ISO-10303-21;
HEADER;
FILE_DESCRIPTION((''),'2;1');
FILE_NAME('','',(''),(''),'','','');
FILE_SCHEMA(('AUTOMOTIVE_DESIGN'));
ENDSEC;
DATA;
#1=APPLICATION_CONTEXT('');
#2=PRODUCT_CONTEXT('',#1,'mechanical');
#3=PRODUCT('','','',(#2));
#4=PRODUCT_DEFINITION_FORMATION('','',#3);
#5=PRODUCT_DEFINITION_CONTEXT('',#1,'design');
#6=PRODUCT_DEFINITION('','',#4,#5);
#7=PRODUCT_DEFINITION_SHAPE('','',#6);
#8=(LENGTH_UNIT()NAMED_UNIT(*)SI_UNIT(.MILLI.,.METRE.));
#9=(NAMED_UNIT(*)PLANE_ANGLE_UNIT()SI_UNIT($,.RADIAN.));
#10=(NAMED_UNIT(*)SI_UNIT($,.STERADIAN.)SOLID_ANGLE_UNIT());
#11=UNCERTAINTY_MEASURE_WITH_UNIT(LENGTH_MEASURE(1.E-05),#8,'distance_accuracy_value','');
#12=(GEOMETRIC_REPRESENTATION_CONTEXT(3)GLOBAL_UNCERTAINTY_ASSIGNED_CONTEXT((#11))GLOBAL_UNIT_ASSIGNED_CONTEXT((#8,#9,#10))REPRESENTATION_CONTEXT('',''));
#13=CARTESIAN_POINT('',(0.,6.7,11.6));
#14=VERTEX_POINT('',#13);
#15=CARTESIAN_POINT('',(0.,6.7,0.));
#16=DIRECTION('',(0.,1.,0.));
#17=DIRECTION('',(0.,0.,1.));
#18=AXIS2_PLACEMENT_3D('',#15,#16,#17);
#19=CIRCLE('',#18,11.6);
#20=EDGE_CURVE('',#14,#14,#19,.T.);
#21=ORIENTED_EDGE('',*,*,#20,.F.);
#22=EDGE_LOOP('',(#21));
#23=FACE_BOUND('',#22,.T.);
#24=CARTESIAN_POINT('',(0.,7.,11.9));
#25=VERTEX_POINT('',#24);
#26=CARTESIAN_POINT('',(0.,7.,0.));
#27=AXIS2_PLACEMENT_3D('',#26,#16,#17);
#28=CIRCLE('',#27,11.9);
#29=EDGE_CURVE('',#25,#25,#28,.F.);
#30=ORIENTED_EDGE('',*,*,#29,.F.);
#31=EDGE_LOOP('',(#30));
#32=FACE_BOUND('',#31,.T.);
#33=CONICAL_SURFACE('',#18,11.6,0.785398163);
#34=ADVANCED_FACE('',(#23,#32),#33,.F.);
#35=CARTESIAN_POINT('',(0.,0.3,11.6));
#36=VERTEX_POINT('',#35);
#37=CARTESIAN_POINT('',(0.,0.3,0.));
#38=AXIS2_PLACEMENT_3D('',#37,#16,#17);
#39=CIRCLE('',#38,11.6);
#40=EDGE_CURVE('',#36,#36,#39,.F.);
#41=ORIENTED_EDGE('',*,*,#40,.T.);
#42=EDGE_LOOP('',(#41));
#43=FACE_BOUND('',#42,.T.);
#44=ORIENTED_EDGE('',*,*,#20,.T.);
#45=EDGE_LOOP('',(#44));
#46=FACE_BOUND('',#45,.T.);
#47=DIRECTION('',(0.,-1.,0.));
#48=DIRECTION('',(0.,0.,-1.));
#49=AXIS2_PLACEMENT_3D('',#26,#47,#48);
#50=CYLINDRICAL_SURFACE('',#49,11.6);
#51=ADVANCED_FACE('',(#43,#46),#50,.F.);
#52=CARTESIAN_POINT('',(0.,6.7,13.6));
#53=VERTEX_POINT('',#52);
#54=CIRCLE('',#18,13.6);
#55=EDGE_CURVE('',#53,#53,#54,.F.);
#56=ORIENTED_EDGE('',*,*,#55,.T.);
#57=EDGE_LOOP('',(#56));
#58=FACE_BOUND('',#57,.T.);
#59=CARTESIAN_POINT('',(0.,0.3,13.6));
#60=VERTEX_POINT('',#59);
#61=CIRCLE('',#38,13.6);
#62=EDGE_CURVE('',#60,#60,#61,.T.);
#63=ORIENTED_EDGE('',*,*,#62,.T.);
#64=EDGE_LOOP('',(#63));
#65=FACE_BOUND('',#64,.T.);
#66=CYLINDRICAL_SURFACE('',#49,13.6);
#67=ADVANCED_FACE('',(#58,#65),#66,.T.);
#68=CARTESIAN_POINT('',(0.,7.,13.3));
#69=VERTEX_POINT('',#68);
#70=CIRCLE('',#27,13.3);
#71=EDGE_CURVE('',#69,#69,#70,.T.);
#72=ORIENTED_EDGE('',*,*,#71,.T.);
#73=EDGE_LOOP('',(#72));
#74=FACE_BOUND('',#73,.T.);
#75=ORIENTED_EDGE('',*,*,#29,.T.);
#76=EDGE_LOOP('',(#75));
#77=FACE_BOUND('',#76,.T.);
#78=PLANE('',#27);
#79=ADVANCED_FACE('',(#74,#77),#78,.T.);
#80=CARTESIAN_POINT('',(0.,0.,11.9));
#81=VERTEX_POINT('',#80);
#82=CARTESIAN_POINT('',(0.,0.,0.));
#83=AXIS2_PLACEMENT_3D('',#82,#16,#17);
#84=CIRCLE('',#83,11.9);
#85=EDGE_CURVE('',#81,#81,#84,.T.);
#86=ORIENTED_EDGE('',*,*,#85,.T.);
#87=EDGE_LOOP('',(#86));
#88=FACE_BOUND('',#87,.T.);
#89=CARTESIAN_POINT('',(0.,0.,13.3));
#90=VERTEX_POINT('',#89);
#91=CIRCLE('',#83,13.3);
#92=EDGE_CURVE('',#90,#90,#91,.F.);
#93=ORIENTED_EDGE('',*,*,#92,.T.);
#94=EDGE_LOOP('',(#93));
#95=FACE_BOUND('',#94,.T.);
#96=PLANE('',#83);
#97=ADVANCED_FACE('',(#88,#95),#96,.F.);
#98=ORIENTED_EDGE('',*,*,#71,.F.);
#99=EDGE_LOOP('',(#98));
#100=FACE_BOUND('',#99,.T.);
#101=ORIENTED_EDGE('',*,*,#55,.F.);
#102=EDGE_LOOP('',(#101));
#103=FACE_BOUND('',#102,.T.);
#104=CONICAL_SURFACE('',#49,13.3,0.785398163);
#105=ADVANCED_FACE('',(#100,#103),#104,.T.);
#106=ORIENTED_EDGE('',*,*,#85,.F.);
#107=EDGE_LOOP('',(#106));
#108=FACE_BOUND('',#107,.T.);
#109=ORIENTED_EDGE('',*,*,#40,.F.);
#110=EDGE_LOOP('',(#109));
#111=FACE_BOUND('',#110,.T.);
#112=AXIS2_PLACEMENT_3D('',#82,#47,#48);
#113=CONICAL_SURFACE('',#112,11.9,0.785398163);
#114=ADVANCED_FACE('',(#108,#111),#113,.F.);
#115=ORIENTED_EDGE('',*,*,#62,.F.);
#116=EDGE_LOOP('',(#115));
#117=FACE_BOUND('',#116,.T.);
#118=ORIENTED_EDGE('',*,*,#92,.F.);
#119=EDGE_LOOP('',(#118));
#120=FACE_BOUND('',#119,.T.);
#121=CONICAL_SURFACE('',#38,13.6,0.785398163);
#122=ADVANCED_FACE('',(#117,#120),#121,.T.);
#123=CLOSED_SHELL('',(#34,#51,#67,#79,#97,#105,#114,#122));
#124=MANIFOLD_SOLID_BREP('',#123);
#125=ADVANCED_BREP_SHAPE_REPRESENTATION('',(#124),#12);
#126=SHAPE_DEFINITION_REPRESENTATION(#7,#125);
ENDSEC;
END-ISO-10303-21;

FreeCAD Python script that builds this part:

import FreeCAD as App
import Part
import Sketcher

V = App.Vector
Q = App.Units.Quantity


def edges_at(feature, points):
    """Names of the edges that pass closest to the given points."""
    edges = feature.Shape.Edges
    near = lambda p: min(range(len(edges)), key=lambda i: edges[i].distToShape(Part.Vertex(*p))[0])
    return sorted({f"Edge{near(p) + 1}" for p in points})

doc = App.newDocument("Part")
body = doc.addObject("PartDesign::Body", "Body")

# Sketch on XZ plane
sketch1 = doc.addObject("Sketcher::SketchObject", "Sketch")
body.addObject(sketch1)
sketch1.AttachmentSupport = (doc.XZ_Plane, [""])
sketch1.MapMode = "FlatFace"
sketch1.addGeometry([
    Part.Circle(V(0, 0, 0), V(0, 0, 1), 13.6),
    Part.Circle(V(0, 0, 0), V(0, 0, 1), 11.6),
], False)
sketch1.addConstraint([
    Sketcher.Constraint("Coincident", 0, 3, -1, 1),
    Sketcher.Constraint("Coincident", 1, 3, -1, 1),
    Sketcher.Constraint("Diameter", 0, Q("27.2 mm")),
    Sketcher.Constraint("Diameter", 1, Q("23.2 mm")),
])
pad1 = doc.addObject("PartDesign::Pad", "Pad")
body.addObject(pad1)
pad1.Profile = sketch1
pad1.Length = 7
pad1.Reversed = True
doc.recompute()

chamfer = doc.addObject("PartDesign::Chamfer", "Chamfer")
body.addObject(chamfer)
chamfer.Base = (pad1, edges_at(pad1, [
    (0, 0, -13.6),
    (0, 7, -13.6),
    (0, 0, -11.6),
    (0, 7, -11.6),
]))
chamfer.Size = 0.3

doc.recompute()
